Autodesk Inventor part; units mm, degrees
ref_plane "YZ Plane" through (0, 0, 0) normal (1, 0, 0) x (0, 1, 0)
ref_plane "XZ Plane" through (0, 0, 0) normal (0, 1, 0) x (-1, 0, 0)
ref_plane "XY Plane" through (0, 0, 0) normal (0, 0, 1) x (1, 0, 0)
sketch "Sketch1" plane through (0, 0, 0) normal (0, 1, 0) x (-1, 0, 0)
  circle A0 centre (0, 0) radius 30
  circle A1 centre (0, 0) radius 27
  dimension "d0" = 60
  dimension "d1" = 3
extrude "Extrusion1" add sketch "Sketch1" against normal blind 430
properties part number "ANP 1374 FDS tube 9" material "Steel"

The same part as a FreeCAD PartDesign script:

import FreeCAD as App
import Part
import Sketcher
from FreeCAD import Vector
Q = App.Units.Quantity

doc = App.newDocument("Part")
body = doc.addObject("PartDesign::Body", "Body")

sketch1 = doc.addObject("Sketcher::SketchObject", "Sketch")
body.addObject(sketch1)
sketch1.AttachmentSupport = (doc.XZ_Plane, [""])
sketch1.MapMode = "FlatFace"
sketch1.addGeometry([
    Part.Circle(Vector(0, 0, 0), Vector(0, 0, 1), 30),
    Part.Circle(Vector(0, 0, 0), Vector(0, 0, 1), 27),
], False)
sketch1.addConstraint([
    Sketcher.Constraint("Coincident", 0, 3, -1, 1),
    Sketcher.Constraint("Coincident", 1, 3, -1, 1),
    Sketcher.Constraint("Diameter", 0, Q("60 mm")),
    Sketcher.Constraint("Diameter", 1, Q("54 mm")),
])
pad1 = doc.addObject("PartDesign::Pad", "Pad")
body.addObject(pad1)
pad1.Profile = sketch1
pad1.Length = 430

doc.recompute()
